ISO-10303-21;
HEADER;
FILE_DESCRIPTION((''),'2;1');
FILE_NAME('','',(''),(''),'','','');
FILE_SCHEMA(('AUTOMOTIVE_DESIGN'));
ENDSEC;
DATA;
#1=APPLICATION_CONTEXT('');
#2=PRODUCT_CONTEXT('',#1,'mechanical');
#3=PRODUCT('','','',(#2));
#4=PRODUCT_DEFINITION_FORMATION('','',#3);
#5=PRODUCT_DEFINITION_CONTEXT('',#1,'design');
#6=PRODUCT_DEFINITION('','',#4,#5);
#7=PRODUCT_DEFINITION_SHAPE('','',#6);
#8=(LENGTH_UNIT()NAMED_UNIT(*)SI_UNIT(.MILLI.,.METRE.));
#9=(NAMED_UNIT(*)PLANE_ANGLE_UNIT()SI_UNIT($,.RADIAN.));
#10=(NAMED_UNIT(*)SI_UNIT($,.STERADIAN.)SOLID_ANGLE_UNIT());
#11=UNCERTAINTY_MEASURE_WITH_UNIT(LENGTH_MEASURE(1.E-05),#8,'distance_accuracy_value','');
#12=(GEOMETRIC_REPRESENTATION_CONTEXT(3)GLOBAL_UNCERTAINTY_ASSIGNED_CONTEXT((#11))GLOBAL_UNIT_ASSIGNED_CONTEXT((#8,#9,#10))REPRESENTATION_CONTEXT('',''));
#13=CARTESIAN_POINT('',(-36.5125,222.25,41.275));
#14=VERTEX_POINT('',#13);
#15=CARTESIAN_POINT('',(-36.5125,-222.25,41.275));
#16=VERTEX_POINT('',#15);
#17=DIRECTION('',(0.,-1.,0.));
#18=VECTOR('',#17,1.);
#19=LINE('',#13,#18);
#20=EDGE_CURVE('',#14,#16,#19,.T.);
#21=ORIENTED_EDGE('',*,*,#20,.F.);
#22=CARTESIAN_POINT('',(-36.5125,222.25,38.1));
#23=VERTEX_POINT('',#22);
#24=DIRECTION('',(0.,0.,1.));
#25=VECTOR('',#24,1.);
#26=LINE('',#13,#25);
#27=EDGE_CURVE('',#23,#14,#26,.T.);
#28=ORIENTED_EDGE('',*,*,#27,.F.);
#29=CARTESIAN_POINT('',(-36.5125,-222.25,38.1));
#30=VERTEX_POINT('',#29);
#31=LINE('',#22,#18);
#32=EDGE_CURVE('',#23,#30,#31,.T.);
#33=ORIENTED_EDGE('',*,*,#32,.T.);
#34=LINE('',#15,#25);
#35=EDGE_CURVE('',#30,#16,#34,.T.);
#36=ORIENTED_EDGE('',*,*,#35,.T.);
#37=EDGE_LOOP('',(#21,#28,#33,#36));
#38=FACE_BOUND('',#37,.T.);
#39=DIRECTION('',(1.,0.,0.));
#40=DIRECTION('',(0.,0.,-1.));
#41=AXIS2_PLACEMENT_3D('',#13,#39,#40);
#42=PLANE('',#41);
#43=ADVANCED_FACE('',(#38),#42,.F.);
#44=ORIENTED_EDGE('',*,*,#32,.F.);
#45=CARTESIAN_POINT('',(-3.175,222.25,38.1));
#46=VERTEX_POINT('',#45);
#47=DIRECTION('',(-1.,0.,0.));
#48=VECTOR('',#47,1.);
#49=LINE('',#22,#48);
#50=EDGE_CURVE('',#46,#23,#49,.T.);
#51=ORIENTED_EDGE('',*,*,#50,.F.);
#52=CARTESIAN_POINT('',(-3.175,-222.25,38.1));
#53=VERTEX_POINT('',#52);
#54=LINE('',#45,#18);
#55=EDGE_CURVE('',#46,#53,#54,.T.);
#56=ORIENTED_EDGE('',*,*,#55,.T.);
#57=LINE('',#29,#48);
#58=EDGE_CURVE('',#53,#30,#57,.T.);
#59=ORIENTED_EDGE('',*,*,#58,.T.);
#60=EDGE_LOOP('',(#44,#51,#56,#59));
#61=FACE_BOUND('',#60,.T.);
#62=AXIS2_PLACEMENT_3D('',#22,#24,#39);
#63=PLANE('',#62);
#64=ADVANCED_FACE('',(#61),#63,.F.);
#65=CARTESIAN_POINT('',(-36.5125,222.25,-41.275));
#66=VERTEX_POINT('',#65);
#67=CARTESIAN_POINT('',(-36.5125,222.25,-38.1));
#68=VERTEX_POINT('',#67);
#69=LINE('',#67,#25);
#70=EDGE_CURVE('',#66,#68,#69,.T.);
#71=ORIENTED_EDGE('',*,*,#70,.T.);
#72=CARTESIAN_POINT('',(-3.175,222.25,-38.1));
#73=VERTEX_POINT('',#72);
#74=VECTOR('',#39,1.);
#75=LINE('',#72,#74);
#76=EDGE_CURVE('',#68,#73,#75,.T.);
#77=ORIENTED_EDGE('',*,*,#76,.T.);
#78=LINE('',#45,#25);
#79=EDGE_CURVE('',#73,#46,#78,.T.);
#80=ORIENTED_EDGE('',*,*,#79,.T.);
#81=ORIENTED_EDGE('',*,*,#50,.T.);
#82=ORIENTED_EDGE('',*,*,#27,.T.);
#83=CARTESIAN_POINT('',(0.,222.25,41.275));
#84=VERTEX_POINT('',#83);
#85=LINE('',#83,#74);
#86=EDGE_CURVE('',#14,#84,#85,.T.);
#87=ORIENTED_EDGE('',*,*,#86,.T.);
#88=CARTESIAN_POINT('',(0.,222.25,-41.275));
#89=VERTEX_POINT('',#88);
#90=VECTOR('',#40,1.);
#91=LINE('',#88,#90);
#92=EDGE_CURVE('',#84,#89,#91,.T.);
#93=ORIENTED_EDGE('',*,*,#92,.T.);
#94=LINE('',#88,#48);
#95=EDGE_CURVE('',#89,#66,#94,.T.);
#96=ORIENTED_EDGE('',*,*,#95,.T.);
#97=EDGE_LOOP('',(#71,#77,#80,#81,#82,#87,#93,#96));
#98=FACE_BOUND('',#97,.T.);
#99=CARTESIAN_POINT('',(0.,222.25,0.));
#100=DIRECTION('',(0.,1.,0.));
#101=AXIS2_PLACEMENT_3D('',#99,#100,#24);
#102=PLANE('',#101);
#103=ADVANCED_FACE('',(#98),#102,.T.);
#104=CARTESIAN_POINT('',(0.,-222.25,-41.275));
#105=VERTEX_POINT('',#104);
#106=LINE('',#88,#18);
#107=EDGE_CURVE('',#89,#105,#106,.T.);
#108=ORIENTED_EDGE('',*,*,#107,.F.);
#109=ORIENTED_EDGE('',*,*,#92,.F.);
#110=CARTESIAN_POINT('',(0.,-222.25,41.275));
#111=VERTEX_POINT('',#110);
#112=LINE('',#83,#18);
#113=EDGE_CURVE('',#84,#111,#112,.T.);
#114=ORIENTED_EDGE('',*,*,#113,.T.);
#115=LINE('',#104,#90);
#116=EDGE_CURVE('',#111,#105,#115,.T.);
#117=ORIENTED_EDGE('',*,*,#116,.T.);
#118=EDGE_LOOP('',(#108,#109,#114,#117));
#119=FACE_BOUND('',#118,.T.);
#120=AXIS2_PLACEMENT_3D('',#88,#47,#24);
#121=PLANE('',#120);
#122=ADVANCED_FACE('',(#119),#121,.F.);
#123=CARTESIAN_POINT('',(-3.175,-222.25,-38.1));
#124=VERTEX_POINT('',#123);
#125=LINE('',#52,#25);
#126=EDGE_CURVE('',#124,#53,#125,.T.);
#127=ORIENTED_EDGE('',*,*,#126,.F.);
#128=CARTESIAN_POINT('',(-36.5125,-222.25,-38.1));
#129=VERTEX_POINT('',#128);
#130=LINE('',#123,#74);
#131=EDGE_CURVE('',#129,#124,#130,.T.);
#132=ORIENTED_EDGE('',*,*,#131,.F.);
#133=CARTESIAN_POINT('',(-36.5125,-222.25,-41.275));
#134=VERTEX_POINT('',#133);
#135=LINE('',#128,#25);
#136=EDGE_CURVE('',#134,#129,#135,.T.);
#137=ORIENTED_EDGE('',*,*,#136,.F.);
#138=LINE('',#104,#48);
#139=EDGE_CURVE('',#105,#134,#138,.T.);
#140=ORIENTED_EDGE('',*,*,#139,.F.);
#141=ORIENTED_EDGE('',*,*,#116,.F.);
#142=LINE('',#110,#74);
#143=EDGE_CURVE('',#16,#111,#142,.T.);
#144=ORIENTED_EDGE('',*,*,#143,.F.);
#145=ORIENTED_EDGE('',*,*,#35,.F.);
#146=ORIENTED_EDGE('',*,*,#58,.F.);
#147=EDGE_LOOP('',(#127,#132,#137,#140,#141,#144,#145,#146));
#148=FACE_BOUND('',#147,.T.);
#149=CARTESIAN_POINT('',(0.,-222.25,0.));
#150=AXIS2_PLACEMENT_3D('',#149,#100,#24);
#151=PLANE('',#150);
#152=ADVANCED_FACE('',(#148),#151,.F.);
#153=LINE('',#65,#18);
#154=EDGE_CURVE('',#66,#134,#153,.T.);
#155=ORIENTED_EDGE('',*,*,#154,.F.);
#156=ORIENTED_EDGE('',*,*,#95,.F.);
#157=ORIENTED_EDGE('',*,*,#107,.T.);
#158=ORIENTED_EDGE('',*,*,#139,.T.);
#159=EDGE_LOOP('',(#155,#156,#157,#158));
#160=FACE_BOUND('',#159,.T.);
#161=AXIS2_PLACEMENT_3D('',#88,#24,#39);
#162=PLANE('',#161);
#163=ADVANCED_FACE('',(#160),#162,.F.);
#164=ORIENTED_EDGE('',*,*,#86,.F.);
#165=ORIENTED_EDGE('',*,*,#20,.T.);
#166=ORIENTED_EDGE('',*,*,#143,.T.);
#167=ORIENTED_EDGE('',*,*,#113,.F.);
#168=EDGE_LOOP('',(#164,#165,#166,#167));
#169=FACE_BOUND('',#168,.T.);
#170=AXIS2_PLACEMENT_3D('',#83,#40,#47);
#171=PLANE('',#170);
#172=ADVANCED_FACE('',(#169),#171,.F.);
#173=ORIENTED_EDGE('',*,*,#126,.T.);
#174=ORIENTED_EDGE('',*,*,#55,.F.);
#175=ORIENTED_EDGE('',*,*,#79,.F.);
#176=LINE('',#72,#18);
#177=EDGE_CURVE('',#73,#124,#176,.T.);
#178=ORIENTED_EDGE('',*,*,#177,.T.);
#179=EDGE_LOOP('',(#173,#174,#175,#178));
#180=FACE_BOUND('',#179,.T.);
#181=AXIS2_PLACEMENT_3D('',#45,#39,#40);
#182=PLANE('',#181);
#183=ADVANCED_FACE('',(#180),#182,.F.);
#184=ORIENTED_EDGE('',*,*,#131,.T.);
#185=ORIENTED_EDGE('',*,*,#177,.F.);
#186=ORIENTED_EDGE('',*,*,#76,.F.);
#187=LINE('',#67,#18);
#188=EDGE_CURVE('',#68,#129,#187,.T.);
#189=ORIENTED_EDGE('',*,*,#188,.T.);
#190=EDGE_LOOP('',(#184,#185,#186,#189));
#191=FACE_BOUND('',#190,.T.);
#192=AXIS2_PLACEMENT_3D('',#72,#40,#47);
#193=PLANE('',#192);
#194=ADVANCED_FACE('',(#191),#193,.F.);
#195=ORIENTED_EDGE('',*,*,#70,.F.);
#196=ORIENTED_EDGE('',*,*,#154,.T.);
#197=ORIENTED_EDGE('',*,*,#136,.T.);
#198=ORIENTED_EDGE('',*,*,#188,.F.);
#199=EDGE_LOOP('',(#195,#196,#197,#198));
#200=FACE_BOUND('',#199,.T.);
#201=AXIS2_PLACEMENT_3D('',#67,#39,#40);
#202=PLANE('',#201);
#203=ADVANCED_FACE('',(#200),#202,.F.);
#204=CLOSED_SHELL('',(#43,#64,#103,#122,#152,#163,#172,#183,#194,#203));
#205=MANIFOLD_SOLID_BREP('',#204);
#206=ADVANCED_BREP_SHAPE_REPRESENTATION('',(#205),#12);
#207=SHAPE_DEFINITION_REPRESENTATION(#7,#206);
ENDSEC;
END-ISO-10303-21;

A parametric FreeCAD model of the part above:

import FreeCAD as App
import Part
import Sketcher

V = App.Vector
Q = App.Units.Quantity

doc = App.newDocument("Part")
params = doc.addObject("Spreadsheet::Sheet", "Params")
for row, (alias, value) in enumerate([
    ("sketch1_height", "3 in"),
    ("sketch1_height2", "3.25 in"),
    ("sketch1_width", "1.4375 in"),
    ("sketch1_width2", "1.3125 in"),
    ("pad1_length", "17.5 in"),
], start=1):
    params.set(f"A{row}", alias)
    params.set(f"B{row}", "=" + value)
    params.setAlias(f"B{row}", alias)

body = doc.addObject("PartDesign::Body", "Body")

# Sketch on XZ plane
sketch1 = body.newObject("Sketcher::SketchObject", "Sketch")
sketch1.AttachmentSupport = (doc.getObject("XZ_Plane"), [""])
sketch1.MapMode = "FlatFace"
sketch1.addGeometry([
    Part.LineSegment(V(0, 41.3, 0), V(0, -41.3, 0)),  # 0
    Part.LineSegment(V(0, -41.3, 0), V(-36.5, -41.3, 0)),  # 1
    Part.LineSegment(V(-36.5, -41.3, 0), V(-36.5, -38.1, 0)),  # 2
    Part.LineSegment(V(-36.5, -38.1, 0), V(-3.2, -38.1, 0)),  # 3
    Part.LineSegment(V(-3.2, -38.1, 0), V(-3.2, 38.1, 0)),  # 4
    Part.LineSegment(V(-3.2, 38.1, 0), V(-36.5, 38.1, 0)),  # 5
    Part.LineSegment(V(-36.5, 38.1, 0), V(-36.5, 41.3, 0)),  # 6
    Part.LineSegment(V(-36.5, 41.3, 0), V(0, 41.3, 0)),  # 7
], False)
sketch1.addConstraint([
    Sketcher.Constraint("Coincident", 0, 2, 1, 1),
    Sketcher.Constraint("Coincident", 1, 2, 2, 1),
    Sketcher.Constraint("Coincident", 2, 2, 3, 1),
    Sketcher.Constraint("Coincident", 3, 2, 4, 1),
    Sketcher.Constraint("Coincident", 4, 2, 5, 1),
    Sketcher.Constraint("Coincident", 5, 2, 6, 1),
    Sketcher.Constraint("Coincident", 6, 2, 7, 1),
    Sketcher.Constraint("Coincident", 7, 2, 0, 1),
    Sketcher.Constraint("Vertical", 0),
    Sketcher.Constraint("Horizontal", 1),
    Sketcher.Constraint("Vertical", 2),
    Sketcher.Constraint("Horizontal", 3),
    Sketcher.Constraint("Vertical", 4),
    Sketcher.Constraint("Horizontal", 5),
    Sketcher.Constraint("Vertical", 6),
    Sketcher.Constraint("Horizontal", 7),
    Sketcher.Constraint("Symmetric", 0, 2, 7, 2, -1, 1),
    Sketcher.Constraint("Symmetric", 2, 2, 5, 2, -1),
    Sketcher.Constraint("DistanceY", 4, 1, 4, 2, Q("3 in")),
    Sketcher.Constraint("DistanceY", 0, 2, 0, 1, Q("3.25 in")),
    Sketcher.Constraint("DistanceX", 1, 2, 1, 1, Q("1.4375 in")),
    Sketcher.Constraint("DistanceX", 3, 1, 3, 2, Q("1.3125 in")),
])
sketch1.setExpression("Constraints[18]", "Params.sketch1_height")
sketch1.setExpression("Constraints[19]", "Params.sketch1_height2")
sketch1.setExpression("Constraints[20]", "Params.sketch1_width")
sketch1.setExpression("Constraints[21]", "Params.sketch1_width2")
pad1 = body.newObject("PartDesign::Pad", "Pad")
pad1.Profile = sketch1
pad1.setExpression("Length", "Params.pad1_length")
pad1.Midplane = True

doc.recompute()
